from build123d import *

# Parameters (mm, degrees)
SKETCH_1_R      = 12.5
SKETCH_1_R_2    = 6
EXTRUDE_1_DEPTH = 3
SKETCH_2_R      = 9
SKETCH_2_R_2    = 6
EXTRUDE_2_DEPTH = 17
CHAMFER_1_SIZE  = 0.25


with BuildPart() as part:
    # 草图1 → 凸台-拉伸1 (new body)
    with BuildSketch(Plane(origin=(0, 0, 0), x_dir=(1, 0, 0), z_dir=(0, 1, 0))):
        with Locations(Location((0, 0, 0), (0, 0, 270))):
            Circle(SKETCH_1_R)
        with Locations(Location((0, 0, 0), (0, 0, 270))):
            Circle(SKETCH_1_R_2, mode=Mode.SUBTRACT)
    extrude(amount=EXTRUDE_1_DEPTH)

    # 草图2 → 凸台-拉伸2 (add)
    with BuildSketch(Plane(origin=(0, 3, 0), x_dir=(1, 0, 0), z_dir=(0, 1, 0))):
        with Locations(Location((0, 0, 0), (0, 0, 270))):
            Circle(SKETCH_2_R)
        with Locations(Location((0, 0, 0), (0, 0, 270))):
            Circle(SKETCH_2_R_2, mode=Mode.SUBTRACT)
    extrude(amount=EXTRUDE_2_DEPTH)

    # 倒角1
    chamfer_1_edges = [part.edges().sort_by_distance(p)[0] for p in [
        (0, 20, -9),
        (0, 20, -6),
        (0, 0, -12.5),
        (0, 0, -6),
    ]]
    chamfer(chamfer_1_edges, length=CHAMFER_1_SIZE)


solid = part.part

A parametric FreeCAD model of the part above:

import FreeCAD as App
import Part
import Sketcher

V = App.Vector
Q = App.Units.Quantity


def edges_at(feature, points):
    """Names of the edges that pass closest to the given points."""
    edges = feature.Shape.Edges
    near = lambda p: min(range(len(edges)), key=lambda i: edges[i].distToShape(Part.Vertex(*p))[0])
    return sorted({f"Edge{near(p) + 1}" for p in points})

doc = App.newDocument("Part")
body = doc.addObject("PartDesign::Body", "Body")

sketch1 = body.newObject("Sketcher::SketchObject", "Sketch")
sketch1.AttachmentSupport = (doc.getObject("XZ_Plane"), [""])
sketch1.MapMode = "FlatFace"
sketch1.addGeometry(Part.Circle(V(0, 0, 0), V(0, 0, 1), 12), False)
sketch1.addGeometry(Part.Circle(V(0, 0, 0), V(0, 0, 1), 6), False)
sketch1.addConstraint(Sketcher.Constraint("Coincident", 0, 3, -1, 1))
sketch1.addConstraint(Sketcher.Constraint("Coincident", 1, 3, -1, 1))
sketch1.addConstraint(Sketcher.Constraint("Diameter", 0, Q("25 mm")))
sketch1.addConstraint(Sketcher.Constraint("Diameter", 1, Q("12 mm")))
pad1 = body.newObject("PartDesign::Pad", "Pad")
pad1.Profile = sketch1
pad1.Length = 3
pad1.Reversed = True

sketch2 = body.newObject("Sketcher::SketchObject", "Sketch001")
sketch2.AttachmentSupport = (doc.getObject("XZ_Plane"), [""])
sketch2.MapMode = "FlatFace"
sketch2.AttachmentOffset = App.Placement(V(0, 0, -3), App.Rotation())
sketch2.addGeometry(Part.Circle(V(0, 0, 0), V(0, 0, 1), 9), False)
sketch2.addGeometry(Part.Circle(V(0, 0, 0), V(0, 0, 1), 6), False)
sketch2.addConstraint(Sketcher.Constraint("Coincident", 0, 3, -1, 1))
sketch2.addConstraint(Sketcher.Constraint("Coincident", 1, 3, -1, 1))
sketch2.addConstraint(Sketcher.Constraint("Diameter", 0, Q("18 mm")))
sketch2.addConstraint(Sketcher.Constraint("Diameter", 1, Q("12 mm")))
pad2 = body.newObject("PartDesign::Pad", "Pad001")
pad2.Profile = sketch2
pad2.Length = 17
pad2.Reversed = True
doc.recompute()

chamfer = body.newObject("PartDesign::Chamfer", "Chamfer")
chamfer.Base = (pad2, edges_at(pad2, [
    (0, 20, -9),
    (0, 20, -6),
    (0, 0, -12.5),
    (0, 0, -6),
]))
chamfer.Size = 0.25

doc.recompute()
